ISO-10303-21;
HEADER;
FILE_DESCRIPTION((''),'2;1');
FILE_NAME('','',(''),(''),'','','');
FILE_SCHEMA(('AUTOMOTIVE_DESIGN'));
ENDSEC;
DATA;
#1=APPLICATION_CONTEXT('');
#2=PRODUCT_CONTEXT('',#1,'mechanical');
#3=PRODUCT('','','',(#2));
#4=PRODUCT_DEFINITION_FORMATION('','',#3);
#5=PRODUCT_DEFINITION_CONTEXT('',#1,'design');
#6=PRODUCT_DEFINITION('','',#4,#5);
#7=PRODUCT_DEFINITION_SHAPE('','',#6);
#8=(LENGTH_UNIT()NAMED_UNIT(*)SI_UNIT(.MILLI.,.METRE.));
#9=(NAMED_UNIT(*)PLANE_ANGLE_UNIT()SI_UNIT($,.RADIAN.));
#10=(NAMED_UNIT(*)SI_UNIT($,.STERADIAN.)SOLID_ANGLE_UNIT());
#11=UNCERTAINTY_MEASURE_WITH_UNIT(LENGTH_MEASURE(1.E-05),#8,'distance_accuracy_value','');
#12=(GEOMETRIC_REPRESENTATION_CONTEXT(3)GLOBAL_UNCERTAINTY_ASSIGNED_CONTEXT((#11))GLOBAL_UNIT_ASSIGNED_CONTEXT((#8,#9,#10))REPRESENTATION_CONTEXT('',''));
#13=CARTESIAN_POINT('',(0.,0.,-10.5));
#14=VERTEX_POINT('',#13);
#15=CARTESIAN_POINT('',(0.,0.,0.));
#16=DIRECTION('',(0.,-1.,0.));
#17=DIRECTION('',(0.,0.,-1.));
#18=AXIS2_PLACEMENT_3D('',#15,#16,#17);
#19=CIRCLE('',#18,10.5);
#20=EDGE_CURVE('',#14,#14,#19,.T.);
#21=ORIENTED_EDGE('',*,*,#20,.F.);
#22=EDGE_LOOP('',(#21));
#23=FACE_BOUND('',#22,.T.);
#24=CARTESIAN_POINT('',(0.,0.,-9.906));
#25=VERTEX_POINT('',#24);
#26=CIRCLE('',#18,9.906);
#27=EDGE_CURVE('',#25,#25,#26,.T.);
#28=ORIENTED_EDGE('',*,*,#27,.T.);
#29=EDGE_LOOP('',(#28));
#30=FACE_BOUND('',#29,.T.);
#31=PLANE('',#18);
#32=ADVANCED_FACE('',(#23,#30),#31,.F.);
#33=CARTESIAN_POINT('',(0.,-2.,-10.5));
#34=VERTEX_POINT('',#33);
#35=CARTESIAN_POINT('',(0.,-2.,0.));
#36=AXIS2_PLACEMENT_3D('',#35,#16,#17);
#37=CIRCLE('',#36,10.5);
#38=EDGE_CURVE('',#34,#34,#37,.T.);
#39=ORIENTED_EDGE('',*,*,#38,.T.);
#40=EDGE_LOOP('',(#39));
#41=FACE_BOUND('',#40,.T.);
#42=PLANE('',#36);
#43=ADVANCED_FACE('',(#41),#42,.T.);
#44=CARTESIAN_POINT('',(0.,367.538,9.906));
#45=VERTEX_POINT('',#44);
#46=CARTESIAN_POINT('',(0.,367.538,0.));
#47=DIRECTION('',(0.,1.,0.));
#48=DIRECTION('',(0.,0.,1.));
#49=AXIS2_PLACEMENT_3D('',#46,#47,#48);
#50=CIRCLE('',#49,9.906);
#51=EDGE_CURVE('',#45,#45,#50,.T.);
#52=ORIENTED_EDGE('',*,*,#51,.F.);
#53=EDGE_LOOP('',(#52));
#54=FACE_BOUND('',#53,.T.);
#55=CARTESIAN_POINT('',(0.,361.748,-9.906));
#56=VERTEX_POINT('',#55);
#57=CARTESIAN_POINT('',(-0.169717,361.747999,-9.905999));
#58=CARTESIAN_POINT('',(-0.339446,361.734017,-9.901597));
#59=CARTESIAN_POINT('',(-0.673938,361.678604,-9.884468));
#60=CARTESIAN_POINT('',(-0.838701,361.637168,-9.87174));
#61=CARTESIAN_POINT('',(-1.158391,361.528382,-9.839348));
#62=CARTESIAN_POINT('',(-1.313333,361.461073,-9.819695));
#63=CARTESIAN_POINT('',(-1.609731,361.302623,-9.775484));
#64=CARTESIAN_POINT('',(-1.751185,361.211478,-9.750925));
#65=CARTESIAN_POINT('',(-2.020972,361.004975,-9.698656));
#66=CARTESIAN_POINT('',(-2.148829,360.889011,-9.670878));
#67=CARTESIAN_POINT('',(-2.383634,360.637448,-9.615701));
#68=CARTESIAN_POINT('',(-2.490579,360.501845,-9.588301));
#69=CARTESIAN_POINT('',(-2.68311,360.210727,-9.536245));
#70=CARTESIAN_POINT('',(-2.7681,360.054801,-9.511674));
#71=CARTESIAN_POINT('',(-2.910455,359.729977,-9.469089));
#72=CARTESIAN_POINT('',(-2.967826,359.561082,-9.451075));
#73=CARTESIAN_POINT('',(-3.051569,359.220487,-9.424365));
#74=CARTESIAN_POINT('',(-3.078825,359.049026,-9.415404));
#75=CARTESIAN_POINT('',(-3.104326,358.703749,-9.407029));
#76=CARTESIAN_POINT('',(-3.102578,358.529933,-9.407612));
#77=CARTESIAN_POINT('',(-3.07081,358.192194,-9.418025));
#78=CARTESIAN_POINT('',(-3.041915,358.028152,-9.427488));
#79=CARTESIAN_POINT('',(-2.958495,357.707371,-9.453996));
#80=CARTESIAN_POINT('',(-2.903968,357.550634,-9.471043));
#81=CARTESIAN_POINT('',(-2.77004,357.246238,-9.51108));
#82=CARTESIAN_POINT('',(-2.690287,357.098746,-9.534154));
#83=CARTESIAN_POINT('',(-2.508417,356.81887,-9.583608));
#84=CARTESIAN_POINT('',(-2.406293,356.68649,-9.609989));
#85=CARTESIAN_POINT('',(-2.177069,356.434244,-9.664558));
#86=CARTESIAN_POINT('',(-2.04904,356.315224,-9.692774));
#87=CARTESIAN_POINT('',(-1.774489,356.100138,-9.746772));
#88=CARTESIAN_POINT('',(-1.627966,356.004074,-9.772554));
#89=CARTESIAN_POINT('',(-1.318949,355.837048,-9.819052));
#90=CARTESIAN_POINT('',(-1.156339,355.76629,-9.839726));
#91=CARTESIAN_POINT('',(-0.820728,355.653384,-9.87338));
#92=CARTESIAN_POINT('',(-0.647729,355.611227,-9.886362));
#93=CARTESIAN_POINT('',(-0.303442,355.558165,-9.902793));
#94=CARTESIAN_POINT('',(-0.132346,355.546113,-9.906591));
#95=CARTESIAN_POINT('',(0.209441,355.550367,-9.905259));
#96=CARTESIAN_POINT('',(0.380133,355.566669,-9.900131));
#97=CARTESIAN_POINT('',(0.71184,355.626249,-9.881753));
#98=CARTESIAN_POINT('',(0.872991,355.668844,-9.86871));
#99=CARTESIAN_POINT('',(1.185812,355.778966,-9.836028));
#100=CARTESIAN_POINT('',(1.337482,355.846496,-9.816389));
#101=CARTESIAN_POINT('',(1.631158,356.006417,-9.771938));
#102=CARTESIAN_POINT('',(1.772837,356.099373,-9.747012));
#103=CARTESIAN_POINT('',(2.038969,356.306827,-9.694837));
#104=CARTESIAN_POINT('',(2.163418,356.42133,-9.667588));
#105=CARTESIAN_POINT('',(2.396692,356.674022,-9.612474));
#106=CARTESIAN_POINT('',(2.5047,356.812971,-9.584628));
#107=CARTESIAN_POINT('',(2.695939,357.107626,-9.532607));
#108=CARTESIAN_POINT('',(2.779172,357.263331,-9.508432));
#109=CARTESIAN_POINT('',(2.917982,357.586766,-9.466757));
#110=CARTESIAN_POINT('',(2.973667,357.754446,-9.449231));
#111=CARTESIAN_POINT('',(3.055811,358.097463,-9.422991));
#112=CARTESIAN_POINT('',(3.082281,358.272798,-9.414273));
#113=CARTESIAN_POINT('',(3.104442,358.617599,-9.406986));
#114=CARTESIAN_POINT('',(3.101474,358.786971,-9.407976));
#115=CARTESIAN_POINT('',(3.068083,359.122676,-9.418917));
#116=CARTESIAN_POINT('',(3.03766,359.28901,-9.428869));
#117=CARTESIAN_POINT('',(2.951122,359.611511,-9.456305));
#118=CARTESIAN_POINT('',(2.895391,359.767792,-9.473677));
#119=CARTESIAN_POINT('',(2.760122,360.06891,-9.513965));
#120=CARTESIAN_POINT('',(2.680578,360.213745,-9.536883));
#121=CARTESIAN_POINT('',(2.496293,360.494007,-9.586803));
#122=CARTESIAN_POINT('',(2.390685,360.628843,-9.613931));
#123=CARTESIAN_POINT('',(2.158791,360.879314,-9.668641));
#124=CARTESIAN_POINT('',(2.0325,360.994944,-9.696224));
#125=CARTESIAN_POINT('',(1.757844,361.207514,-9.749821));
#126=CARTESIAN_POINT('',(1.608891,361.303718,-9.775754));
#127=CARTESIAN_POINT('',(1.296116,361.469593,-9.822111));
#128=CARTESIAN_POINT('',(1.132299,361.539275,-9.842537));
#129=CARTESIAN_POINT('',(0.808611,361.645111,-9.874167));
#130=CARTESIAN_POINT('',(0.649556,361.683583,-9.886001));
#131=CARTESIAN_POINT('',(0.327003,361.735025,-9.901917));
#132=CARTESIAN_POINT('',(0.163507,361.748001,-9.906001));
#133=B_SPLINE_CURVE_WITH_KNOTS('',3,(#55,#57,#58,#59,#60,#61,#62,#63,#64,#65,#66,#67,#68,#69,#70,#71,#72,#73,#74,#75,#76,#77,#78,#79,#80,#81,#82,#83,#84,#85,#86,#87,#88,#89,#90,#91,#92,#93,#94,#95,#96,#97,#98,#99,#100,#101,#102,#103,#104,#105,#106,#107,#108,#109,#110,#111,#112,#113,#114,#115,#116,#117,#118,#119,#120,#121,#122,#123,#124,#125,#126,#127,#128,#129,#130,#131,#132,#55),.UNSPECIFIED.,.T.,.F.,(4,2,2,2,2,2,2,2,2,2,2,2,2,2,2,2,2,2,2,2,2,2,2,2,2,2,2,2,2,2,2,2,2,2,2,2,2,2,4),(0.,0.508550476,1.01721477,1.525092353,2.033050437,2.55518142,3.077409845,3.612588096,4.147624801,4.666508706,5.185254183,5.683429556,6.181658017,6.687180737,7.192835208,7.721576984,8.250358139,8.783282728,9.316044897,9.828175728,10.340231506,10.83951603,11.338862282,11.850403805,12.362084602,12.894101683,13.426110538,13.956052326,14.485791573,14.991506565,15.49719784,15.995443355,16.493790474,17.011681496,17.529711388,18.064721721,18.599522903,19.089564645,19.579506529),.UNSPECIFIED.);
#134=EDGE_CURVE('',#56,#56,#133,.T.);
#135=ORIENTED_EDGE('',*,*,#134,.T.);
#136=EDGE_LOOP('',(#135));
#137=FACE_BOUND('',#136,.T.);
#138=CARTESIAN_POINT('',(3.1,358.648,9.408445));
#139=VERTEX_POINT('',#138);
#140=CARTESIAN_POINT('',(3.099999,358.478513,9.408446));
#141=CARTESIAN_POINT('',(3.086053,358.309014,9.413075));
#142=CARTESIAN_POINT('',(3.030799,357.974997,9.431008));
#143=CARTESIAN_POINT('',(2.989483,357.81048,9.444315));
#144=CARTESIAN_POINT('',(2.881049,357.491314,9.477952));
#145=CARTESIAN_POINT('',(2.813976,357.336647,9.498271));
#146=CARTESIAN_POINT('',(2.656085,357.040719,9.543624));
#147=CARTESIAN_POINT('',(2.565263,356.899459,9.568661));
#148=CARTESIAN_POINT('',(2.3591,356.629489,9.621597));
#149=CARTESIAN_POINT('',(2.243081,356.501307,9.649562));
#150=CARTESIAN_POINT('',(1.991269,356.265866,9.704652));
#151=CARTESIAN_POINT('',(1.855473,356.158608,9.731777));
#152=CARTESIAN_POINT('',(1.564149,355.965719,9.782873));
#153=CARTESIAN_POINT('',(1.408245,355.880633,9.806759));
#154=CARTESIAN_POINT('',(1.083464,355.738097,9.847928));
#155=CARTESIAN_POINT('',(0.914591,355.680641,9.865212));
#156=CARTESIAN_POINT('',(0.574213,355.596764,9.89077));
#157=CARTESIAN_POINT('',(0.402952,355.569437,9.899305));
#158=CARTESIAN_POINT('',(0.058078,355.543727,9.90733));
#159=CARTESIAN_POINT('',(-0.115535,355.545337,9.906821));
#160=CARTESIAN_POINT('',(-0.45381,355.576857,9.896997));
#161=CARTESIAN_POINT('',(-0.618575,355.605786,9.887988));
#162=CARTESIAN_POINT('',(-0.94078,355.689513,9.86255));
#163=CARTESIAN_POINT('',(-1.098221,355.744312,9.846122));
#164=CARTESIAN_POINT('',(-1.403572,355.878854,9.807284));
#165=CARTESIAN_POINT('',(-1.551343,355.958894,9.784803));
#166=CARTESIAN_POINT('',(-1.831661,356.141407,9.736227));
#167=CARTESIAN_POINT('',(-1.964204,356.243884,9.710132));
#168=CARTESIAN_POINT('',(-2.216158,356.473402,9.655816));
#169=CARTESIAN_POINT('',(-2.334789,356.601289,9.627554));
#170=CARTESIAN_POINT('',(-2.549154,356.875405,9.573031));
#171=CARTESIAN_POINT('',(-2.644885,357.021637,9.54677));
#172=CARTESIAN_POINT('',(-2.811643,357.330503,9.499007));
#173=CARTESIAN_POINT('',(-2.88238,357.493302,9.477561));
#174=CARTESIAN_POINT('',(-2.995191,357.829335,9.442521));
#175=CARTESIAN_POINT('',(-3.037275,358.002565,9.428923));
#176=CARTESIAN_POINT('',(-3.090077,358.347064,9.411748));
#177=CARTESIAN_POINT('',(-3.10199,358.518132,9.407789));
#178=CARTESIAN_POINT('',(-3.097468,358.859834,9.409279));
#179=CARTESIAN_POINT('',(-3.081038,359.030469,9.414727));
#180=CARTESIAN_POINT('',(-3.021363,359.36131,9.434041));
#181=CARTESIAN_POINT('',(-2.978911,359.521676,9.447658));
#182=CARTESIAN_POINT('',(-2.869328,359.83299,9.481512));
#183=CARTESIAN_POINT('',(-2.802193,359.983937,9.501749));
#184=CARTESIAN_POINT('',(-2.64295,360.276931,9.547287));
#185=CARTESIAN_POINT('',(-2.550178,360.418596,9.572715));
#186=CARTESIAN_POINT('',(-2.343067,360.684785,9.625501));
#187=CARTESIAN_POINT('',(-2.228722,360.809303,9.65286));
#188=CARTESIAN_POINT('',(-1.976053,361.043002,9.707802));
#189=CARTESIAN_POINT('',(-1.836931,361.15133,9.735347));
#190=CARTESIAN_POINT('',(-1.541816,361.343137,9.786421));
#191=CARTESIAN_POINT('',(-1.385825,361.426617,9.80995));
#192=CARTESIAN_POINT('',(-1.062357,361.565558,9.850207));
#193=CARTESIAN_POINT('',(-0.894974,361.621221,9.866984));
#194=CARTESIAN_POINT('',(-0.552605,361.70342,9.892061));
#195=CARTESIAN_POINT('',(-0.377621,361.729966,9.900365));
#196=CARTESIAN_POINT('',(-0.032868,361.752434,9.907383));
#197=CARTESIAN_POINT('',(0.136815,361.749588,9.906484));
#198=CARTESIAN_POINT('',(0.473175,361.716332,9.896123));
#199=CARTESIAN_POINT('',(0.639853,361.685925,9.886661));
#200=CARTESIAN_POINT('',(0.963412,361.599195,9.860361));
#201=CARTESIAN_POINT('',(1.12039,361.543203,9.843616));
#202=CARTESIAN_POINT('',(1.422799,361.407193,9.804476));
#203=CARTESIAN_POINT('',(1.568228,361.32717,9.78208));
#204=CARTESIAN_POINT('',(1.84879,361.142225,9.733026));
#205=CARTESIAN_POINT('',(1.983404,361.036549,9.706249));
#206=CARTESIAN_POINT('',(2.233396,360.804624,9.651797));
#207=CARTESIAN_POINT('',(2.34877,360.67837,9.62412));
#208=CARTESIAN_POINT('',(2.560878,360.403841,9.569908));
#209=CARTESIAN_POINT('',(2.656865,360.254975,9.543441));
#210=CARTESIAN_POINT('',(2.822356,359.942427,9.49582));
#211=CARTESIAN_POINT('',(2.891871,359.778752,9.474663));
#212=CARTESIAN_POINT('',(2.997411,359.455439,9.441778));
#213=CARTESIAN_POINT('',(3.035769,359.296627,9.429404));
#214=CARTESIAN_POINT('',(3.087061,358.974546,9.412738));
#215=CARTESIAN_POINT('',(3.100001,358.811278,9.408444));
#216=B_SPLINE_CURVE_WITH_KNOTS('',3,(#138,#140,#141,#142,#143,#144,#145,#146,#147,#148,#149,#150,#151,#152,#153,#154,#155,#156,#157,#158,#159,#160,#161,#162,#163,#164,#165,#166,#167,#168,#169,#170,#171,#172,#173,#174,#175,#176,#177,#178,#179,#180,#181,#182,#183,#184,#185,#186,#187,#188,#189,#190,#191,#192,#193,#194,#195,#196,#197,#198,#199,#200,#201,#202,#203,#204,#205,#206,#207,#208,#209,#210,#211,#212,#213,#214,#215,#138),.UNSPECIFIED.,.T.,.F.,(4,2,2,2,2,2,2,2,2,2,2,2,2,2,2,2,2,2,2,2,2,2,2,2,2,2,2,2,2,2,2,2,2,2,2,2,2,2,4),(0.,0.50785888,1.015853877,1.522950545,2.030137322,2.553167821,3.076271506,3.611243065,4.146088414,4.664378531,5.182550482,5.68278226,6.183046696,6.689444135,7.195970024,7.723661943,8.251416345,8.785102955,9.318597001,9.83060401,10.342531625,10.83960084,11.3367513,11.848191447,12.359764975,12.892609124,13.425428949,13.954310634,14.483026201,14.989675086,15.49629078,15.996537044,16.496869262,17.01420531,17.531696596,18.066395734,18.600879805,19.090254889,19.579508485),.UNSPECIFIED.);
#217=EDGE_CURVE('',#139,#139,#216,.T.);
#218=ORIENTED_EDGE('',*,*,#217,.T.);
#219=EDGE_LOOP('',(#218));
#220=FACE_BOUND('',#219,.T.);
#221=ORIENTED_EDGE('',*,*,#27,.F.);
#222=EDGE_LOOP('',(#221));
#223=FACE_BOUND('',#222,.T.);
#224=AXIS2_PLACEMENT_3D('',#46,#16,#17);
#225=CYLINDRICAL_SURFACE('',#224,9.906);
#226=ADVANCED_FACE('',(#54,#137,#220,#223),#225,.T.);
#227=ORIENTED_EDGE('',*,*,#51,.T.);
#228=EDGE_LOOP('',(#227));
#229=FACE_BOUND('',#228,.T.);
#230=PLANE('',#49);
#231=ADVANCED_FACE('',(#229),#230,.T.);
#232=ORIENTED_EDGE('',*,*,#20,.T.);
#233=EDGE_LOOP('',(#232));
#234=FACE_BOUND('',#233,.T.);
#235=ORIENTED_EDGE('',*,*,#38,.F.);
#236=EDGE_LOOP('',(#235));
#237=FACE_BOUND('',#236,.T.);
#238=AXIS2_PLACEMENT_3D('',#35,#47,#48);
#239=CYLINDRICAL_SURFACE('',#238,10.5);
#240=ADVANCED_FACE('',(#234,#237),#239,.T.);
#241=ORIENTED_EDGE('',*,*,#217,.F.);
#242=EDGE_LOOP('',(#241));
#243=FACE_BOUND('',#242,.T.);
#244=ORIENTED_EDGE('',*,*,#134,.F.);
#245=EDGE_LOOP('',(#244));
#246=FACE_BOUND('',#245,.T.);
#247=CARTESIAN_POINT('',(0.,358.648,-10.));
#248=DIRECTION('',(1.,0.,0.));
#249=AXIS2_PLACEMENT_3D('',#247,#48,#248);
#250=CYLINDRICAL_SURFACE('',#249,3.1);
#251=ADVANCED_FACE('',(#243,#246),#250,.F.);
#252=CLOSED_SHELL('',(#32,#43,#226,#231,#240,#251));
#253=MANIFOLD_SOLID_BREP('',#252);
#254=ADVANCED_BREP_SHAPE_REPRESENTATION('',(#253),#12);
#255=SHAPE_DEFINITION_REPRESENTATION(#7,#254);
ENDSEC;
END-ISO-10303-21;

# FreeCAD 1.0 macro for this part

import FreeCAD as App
import Part
import Sketcher
Q = App.Units.Quantity

doc = App.newDocument("Part")
body = doc.addObject("PartDesign::Body", "Body")

sketch1 = body.newObject("Sketcher::SketchObject", "Sketch")
sketch1.AttachmentSupport = (doc.getObject("XZ_Plane"), [""])
sketch1.MapMode = "FlatFace"
sketch1.addGeometry(Part.Circle(App.Vector(0, 0, 0), App.Vector(0, 0, 1), 10), False)
sketch1.addConstraint([
    Sketcher.Constraint("Coincident", 0, 3, -1, 1),
    Sketcher.Constraint("Diameter", 0, Q("19.812 mm")),
])
pad1 = body.newObject("PartDesign::Pad", "Pad")
pad1.Profile = sketch1
pad1.Length = 367.538
pad1.Reversed = True

sketch2 = body.newObject("Sketcher::SketchObject", "Sketch001")
sketch2.AttachmentSupport = (doc.getObject("XY_Plane"), [""])
sketch2.MapMode = "FlatFace"
sketch2.addGeometry(Part.Circle(App.Vector(0, 358.6, 0), App.Vector(0, 0, 1), 3.1), False)
sketch2.addConstraint([
    Sketcher.Constraint("PointOnObject", 0, 3, -2),
    Sketcher.Constraint("Diameter", 0, Q("6.2 mm")),
    Sketcher.Constraint("DistanceY", -1, 1, 0, 3, Q("358.648 mm")),
])
pocket1 = body.newObject("PartDesign::Pocket", "Pocket")
pocket1.Profile = sketch2
pocket1.Length = 20
pocket1.Midplane = True

sketch3 = body.newObject("Sketcher::SketchObject", "Sketch002")
sketch3.AttachmentSupport = (doc.getObject("XZ_Plane"), [""])
sketch3.MapMode = "FlatFace"
sketch3.addGeometry(Part.Circle(App.Vector(0, 0, 0), App.Vector(0, 0, 1), 10), False)
sketch3.addConstraint([
    Sketcher.Constraint("Coincident", 0, 3, -1, 1),
    Sketcher.Constraint("Diameter", 0, Q("21 mm")),
])
pad2 = body.newObject("PartDesign::Pad", "Pad001")
pad2.Profile = sketch3
pad2.Length = 2

doc.recompute()
